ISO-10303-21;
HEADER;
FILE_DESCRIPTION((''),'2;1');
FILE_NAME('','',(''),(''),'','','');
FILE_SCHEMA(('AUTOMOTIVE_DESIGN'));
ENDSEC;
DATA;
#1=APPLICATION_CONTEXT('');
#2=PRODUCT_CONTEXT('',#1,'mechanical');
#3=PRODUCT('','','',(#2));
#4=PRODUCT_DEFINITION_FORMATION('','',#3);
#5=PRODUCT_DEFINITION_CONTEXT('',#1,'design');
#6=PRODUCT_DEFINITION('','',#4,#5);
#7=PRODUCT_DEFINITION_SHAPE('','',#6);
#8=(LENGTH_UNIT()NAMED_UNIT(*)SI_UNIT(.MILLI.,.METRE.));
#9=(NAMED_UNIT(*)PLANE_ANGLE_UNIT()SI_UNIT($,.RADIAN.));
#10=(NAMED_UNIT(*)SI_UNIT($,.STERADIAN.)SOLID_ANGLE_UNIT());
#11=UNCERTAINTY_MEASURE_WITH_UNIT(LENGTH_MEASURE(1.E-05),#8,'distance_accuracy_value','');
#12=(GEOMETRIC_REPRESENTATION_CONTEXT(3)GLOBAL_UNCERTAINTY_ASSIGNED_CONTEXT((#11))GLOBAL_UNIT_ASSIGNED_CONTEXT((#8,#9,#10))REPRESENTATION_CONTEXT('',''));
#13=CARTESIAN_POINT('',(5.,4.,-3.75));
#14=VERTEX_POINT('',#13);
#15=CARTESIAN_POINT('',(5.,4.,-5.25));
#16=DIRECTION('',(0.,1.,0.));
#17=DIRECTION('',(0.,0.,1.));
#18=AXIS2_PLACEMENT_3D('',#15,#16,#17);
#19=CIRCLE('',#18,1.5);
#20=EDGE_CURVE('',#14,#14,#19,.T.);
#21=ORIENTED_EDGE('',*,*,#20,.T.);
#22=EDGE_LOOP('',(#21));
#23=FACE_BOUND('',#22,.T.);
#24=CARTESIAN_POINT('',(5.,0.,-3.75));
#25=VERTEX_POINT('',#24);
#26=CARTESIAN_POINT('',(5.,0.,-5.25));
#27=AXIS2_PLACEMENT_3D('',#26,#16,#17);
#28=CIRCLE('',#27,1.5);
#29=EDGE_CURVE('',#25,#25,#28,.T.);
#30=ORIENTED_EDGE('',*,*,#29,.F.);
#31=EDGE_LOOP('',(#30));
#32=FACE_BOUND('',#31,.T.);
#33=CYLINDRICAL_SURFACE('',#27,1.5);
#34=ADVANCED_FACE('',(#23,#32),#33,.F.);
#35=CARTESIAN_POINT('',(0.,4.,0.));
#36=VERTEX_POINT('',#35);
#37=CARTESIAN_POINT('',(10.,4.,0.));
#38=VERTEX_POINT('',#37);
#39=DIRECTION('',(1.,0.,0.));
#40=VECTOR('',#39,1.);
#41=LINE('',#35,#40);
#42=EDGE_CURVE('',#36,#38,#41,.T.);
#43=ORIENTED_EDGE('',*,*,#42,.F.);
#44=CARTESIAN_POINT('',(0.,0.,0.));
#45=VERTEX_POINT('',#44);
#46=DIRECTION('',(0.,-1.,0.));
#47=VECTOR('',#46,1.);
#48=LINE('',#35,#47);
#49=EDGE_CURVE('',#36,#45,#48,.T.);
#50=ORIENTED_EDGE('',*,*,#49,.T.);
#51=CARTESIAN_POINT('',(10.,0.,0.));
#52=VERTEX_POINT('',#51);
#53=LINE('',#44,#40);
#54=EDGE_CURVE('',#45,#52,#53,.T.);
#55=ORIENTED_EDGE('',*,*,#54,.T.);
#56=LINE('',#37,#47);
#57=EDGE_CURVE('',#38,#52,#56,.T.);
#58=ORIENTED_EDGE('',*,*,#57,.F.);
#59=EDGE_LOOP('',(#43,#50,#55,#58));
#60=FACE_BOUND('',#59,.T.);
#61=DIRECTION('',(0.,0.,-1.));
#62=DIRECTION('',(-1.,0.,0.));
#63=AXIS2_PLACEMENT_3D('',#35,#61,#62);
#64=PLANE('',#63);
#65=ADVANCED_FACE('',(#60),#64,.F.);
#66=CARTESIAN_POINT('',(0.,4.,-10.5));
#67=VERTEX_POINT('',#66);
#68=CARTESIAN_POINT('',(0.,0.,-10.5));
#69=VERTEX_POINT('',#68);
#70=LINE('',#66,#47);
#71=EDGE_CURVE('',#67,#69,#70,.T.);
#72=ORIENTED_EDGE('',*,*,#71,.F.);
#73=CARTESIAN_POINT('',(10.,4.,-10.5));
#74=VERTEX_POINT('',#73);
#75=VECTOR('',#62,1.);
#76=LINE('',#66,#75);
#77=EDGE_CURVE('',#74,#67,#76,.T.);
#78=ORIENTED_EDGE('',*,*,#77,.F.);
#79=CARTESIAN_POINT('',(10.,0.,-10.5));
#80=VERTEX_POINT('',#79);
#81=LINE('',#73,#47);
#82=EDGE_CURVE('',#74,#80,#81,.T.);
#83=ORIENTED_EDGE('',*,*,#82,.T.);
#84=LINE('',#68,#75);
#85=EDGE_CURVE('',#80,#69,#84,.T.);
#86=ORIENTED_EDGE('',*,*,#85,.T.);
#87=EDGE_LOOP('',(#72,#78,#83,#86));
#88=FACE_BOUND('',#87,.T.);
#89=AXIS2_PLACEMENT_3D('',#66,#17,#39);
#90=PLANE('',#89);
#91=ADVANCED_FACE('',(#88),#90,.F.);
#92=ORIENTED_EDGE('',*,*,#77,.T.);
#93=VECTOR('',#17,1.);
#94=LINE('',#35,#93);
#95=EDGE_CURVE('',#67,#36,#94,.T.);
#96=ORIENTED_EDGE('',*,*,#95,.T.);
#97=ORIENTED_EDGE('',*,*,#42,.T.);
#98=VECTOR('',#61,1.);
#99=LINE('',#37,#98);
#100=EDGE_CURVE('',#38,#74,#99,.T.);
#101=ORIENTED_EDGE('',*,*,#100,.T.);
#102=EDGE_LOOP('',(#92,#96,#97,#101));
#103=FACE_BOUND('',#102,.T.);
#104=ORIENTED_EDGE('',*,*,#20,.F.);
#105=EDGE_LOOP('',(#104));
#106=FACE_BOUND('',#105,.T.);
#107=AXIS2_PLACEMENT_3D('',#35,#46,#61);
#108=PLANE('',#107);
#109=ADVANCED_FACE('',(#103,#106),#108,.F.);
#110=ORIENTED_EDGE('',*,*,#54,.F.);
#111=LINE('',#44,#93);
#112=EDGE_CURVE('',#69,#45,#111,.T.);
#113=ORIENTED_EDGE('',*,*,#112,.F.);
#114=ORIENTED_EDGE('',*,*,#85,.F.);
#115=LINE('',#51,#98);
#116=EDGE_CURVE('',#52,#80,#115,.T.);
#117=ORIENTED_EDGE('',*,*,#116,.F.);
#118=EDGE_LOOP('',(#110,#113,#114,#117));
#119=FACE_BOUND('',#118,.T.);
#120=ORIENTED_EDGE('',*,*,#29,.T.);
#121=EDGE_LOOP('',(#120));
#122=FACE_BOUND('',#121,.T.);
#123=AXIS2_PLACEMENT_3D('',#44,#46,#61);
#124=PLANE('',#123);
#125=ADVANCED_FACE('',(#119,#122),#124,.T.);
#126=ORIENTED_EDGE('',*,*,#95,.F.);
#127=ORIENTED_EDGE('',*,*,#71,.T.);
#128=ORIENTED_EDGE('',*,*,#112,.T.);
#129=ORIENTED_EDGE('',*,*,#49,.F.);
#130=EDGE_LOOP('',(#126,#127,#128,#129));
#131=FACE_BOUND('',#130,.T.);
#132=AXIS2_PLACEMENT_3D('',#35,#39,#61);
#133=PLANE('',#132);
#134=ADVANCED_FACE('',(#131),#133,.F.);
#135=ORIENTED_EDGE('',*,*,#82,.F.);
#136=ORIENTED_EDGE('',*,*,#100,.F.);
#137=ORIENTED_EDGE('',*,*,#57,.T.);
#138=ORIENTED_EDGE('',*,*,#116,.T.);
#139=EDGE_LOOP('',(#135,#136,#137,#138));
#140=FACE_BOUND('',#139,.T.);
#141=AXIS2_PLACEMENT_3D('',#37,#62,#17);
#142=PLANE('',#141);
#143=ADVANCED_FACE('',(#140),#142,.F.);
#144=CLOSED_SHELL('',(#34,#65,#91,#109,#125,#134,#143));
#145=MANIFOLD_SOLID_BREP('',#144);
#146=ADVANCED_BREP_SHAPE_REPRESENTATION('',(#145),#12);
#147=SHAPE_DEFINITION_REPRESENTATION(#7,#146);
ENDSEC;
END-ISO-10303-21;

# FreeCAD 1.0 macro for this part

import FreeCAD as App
import Part
import Sketcher
Q = App.Units.Quantity


def add_polygon(sketch, points):
    """Adds a closed chain of lines whose ends are joined by coincident constraints."""
    first, n = sketch.GeometryCount, len(points)
    for a, b in zip(points, points[1:] + points[:1]):
        sketch.addGeometry(Part.LineSegment(App.Vector(*a, 0), App.Vector(*b, 0)), False)
    for i in range(n):
        sketch.addConstraint(Sketcher.Constraint("Coincident", first + i, 2, first + (i + 1) % n, 1))

doc = App.newDocument("Part")
params = doc.addObject("Spreadsheet::Sheet", "Params")
for row, (alias, value) in enumerate([
    ("sketch1_width", "10 mm"),
    ("sketch1_height", "10.5 mm"),
    ("pad1_length", "4 mm"),
    ("sketch2_diameter", "3 mm"),
    ("pocket1_length", "4 mm"),
], start=1):
    params.set(f"A{row}", alias)
    params.set(f"B{row}", "=" + value)
    params.setAlias(f"B{row}", alias)

body = doc.addObject("PartDesign::Body", "Body")

# Sketch on XZ plane
sketch1 = body.newObject("Sketcher::SketchObject", "Sketch")
sketch1.AttachmentSupport = (doc.getObject("XZ_Plane"), [""])
sketch1.MapMode = "FlatFace"
add_polygon(sketch1, [(0, -10), (0, 0), (10, 0), (10, -10)])  # lines 0-3
sketch1.addConstraint([
    Sketcher.Constraint("Vertical", 0),
    Sketcher.Constraint("Horizontal", 1),
    Sketcher.Constraint("Vertical", 2),
    Sketcher.Constraint("Horizontal", 3),
    Sketcher.Constraint("Coincident", 0, 2, -1, 1),
    Sketcher.Constraint("DistanceX", 1, 1, 1, 2, Q("10 mm")),
    Sketcher.Constraint("DistanceY", 0, 1, 0, 2, Q("10.5 mm")),
])
sketch1.setExpression("Constraints[9]", "Params.sketch1_width")
sketch1.setExpression("Constraints[10]", "Params.sketch1_height")
pad1 = body.newObject("PartDesign::Pad", "Pad")
pad1.Profile = sketch1
pad1.setExpression("Length", "Params.pad1_length")
pad1.Reversed = True

# Sketch on XZ plane
sketch2 = body.newObject("Sketcher::SketchObject", "Sketch001")
sketch2.AttachmentSupport = (doc.getObject("XZ_Plane"), [""])
sketch2.MapMode = "FlatFace"
sketch2.AttachmentOffset = App.Placement(App.Vector(0, 0, -4), App.Rotation())
sketch2.addGeometry(Part.Circle(App.Vector(5, -5.2, 0), App.Vector(0, 0, 1), 1.5), False)
sketch2.addConstraint([
    Sketcher.Constraint("Diameter", 0, Q("3 mm")),
    Sketcher.Constraint("DistanceX", -1, 1, 0, 3, Q("5 mm")),
    Sketcher.Constraint("DistanceY", 0, 3, -1, 1, Q("5.25 mm")),
])
sketch2.setExpression("Constraints[0]", "Params.sketch2_diameter")
pocket1 = body.newObject("PartDesign::Pocket", "Pocket")
pocket1.Profile = sketch2
pocket1.setExpression("Length", "Params.pocket1_length")
pocket1.Reversed = True

doc.recompute()
